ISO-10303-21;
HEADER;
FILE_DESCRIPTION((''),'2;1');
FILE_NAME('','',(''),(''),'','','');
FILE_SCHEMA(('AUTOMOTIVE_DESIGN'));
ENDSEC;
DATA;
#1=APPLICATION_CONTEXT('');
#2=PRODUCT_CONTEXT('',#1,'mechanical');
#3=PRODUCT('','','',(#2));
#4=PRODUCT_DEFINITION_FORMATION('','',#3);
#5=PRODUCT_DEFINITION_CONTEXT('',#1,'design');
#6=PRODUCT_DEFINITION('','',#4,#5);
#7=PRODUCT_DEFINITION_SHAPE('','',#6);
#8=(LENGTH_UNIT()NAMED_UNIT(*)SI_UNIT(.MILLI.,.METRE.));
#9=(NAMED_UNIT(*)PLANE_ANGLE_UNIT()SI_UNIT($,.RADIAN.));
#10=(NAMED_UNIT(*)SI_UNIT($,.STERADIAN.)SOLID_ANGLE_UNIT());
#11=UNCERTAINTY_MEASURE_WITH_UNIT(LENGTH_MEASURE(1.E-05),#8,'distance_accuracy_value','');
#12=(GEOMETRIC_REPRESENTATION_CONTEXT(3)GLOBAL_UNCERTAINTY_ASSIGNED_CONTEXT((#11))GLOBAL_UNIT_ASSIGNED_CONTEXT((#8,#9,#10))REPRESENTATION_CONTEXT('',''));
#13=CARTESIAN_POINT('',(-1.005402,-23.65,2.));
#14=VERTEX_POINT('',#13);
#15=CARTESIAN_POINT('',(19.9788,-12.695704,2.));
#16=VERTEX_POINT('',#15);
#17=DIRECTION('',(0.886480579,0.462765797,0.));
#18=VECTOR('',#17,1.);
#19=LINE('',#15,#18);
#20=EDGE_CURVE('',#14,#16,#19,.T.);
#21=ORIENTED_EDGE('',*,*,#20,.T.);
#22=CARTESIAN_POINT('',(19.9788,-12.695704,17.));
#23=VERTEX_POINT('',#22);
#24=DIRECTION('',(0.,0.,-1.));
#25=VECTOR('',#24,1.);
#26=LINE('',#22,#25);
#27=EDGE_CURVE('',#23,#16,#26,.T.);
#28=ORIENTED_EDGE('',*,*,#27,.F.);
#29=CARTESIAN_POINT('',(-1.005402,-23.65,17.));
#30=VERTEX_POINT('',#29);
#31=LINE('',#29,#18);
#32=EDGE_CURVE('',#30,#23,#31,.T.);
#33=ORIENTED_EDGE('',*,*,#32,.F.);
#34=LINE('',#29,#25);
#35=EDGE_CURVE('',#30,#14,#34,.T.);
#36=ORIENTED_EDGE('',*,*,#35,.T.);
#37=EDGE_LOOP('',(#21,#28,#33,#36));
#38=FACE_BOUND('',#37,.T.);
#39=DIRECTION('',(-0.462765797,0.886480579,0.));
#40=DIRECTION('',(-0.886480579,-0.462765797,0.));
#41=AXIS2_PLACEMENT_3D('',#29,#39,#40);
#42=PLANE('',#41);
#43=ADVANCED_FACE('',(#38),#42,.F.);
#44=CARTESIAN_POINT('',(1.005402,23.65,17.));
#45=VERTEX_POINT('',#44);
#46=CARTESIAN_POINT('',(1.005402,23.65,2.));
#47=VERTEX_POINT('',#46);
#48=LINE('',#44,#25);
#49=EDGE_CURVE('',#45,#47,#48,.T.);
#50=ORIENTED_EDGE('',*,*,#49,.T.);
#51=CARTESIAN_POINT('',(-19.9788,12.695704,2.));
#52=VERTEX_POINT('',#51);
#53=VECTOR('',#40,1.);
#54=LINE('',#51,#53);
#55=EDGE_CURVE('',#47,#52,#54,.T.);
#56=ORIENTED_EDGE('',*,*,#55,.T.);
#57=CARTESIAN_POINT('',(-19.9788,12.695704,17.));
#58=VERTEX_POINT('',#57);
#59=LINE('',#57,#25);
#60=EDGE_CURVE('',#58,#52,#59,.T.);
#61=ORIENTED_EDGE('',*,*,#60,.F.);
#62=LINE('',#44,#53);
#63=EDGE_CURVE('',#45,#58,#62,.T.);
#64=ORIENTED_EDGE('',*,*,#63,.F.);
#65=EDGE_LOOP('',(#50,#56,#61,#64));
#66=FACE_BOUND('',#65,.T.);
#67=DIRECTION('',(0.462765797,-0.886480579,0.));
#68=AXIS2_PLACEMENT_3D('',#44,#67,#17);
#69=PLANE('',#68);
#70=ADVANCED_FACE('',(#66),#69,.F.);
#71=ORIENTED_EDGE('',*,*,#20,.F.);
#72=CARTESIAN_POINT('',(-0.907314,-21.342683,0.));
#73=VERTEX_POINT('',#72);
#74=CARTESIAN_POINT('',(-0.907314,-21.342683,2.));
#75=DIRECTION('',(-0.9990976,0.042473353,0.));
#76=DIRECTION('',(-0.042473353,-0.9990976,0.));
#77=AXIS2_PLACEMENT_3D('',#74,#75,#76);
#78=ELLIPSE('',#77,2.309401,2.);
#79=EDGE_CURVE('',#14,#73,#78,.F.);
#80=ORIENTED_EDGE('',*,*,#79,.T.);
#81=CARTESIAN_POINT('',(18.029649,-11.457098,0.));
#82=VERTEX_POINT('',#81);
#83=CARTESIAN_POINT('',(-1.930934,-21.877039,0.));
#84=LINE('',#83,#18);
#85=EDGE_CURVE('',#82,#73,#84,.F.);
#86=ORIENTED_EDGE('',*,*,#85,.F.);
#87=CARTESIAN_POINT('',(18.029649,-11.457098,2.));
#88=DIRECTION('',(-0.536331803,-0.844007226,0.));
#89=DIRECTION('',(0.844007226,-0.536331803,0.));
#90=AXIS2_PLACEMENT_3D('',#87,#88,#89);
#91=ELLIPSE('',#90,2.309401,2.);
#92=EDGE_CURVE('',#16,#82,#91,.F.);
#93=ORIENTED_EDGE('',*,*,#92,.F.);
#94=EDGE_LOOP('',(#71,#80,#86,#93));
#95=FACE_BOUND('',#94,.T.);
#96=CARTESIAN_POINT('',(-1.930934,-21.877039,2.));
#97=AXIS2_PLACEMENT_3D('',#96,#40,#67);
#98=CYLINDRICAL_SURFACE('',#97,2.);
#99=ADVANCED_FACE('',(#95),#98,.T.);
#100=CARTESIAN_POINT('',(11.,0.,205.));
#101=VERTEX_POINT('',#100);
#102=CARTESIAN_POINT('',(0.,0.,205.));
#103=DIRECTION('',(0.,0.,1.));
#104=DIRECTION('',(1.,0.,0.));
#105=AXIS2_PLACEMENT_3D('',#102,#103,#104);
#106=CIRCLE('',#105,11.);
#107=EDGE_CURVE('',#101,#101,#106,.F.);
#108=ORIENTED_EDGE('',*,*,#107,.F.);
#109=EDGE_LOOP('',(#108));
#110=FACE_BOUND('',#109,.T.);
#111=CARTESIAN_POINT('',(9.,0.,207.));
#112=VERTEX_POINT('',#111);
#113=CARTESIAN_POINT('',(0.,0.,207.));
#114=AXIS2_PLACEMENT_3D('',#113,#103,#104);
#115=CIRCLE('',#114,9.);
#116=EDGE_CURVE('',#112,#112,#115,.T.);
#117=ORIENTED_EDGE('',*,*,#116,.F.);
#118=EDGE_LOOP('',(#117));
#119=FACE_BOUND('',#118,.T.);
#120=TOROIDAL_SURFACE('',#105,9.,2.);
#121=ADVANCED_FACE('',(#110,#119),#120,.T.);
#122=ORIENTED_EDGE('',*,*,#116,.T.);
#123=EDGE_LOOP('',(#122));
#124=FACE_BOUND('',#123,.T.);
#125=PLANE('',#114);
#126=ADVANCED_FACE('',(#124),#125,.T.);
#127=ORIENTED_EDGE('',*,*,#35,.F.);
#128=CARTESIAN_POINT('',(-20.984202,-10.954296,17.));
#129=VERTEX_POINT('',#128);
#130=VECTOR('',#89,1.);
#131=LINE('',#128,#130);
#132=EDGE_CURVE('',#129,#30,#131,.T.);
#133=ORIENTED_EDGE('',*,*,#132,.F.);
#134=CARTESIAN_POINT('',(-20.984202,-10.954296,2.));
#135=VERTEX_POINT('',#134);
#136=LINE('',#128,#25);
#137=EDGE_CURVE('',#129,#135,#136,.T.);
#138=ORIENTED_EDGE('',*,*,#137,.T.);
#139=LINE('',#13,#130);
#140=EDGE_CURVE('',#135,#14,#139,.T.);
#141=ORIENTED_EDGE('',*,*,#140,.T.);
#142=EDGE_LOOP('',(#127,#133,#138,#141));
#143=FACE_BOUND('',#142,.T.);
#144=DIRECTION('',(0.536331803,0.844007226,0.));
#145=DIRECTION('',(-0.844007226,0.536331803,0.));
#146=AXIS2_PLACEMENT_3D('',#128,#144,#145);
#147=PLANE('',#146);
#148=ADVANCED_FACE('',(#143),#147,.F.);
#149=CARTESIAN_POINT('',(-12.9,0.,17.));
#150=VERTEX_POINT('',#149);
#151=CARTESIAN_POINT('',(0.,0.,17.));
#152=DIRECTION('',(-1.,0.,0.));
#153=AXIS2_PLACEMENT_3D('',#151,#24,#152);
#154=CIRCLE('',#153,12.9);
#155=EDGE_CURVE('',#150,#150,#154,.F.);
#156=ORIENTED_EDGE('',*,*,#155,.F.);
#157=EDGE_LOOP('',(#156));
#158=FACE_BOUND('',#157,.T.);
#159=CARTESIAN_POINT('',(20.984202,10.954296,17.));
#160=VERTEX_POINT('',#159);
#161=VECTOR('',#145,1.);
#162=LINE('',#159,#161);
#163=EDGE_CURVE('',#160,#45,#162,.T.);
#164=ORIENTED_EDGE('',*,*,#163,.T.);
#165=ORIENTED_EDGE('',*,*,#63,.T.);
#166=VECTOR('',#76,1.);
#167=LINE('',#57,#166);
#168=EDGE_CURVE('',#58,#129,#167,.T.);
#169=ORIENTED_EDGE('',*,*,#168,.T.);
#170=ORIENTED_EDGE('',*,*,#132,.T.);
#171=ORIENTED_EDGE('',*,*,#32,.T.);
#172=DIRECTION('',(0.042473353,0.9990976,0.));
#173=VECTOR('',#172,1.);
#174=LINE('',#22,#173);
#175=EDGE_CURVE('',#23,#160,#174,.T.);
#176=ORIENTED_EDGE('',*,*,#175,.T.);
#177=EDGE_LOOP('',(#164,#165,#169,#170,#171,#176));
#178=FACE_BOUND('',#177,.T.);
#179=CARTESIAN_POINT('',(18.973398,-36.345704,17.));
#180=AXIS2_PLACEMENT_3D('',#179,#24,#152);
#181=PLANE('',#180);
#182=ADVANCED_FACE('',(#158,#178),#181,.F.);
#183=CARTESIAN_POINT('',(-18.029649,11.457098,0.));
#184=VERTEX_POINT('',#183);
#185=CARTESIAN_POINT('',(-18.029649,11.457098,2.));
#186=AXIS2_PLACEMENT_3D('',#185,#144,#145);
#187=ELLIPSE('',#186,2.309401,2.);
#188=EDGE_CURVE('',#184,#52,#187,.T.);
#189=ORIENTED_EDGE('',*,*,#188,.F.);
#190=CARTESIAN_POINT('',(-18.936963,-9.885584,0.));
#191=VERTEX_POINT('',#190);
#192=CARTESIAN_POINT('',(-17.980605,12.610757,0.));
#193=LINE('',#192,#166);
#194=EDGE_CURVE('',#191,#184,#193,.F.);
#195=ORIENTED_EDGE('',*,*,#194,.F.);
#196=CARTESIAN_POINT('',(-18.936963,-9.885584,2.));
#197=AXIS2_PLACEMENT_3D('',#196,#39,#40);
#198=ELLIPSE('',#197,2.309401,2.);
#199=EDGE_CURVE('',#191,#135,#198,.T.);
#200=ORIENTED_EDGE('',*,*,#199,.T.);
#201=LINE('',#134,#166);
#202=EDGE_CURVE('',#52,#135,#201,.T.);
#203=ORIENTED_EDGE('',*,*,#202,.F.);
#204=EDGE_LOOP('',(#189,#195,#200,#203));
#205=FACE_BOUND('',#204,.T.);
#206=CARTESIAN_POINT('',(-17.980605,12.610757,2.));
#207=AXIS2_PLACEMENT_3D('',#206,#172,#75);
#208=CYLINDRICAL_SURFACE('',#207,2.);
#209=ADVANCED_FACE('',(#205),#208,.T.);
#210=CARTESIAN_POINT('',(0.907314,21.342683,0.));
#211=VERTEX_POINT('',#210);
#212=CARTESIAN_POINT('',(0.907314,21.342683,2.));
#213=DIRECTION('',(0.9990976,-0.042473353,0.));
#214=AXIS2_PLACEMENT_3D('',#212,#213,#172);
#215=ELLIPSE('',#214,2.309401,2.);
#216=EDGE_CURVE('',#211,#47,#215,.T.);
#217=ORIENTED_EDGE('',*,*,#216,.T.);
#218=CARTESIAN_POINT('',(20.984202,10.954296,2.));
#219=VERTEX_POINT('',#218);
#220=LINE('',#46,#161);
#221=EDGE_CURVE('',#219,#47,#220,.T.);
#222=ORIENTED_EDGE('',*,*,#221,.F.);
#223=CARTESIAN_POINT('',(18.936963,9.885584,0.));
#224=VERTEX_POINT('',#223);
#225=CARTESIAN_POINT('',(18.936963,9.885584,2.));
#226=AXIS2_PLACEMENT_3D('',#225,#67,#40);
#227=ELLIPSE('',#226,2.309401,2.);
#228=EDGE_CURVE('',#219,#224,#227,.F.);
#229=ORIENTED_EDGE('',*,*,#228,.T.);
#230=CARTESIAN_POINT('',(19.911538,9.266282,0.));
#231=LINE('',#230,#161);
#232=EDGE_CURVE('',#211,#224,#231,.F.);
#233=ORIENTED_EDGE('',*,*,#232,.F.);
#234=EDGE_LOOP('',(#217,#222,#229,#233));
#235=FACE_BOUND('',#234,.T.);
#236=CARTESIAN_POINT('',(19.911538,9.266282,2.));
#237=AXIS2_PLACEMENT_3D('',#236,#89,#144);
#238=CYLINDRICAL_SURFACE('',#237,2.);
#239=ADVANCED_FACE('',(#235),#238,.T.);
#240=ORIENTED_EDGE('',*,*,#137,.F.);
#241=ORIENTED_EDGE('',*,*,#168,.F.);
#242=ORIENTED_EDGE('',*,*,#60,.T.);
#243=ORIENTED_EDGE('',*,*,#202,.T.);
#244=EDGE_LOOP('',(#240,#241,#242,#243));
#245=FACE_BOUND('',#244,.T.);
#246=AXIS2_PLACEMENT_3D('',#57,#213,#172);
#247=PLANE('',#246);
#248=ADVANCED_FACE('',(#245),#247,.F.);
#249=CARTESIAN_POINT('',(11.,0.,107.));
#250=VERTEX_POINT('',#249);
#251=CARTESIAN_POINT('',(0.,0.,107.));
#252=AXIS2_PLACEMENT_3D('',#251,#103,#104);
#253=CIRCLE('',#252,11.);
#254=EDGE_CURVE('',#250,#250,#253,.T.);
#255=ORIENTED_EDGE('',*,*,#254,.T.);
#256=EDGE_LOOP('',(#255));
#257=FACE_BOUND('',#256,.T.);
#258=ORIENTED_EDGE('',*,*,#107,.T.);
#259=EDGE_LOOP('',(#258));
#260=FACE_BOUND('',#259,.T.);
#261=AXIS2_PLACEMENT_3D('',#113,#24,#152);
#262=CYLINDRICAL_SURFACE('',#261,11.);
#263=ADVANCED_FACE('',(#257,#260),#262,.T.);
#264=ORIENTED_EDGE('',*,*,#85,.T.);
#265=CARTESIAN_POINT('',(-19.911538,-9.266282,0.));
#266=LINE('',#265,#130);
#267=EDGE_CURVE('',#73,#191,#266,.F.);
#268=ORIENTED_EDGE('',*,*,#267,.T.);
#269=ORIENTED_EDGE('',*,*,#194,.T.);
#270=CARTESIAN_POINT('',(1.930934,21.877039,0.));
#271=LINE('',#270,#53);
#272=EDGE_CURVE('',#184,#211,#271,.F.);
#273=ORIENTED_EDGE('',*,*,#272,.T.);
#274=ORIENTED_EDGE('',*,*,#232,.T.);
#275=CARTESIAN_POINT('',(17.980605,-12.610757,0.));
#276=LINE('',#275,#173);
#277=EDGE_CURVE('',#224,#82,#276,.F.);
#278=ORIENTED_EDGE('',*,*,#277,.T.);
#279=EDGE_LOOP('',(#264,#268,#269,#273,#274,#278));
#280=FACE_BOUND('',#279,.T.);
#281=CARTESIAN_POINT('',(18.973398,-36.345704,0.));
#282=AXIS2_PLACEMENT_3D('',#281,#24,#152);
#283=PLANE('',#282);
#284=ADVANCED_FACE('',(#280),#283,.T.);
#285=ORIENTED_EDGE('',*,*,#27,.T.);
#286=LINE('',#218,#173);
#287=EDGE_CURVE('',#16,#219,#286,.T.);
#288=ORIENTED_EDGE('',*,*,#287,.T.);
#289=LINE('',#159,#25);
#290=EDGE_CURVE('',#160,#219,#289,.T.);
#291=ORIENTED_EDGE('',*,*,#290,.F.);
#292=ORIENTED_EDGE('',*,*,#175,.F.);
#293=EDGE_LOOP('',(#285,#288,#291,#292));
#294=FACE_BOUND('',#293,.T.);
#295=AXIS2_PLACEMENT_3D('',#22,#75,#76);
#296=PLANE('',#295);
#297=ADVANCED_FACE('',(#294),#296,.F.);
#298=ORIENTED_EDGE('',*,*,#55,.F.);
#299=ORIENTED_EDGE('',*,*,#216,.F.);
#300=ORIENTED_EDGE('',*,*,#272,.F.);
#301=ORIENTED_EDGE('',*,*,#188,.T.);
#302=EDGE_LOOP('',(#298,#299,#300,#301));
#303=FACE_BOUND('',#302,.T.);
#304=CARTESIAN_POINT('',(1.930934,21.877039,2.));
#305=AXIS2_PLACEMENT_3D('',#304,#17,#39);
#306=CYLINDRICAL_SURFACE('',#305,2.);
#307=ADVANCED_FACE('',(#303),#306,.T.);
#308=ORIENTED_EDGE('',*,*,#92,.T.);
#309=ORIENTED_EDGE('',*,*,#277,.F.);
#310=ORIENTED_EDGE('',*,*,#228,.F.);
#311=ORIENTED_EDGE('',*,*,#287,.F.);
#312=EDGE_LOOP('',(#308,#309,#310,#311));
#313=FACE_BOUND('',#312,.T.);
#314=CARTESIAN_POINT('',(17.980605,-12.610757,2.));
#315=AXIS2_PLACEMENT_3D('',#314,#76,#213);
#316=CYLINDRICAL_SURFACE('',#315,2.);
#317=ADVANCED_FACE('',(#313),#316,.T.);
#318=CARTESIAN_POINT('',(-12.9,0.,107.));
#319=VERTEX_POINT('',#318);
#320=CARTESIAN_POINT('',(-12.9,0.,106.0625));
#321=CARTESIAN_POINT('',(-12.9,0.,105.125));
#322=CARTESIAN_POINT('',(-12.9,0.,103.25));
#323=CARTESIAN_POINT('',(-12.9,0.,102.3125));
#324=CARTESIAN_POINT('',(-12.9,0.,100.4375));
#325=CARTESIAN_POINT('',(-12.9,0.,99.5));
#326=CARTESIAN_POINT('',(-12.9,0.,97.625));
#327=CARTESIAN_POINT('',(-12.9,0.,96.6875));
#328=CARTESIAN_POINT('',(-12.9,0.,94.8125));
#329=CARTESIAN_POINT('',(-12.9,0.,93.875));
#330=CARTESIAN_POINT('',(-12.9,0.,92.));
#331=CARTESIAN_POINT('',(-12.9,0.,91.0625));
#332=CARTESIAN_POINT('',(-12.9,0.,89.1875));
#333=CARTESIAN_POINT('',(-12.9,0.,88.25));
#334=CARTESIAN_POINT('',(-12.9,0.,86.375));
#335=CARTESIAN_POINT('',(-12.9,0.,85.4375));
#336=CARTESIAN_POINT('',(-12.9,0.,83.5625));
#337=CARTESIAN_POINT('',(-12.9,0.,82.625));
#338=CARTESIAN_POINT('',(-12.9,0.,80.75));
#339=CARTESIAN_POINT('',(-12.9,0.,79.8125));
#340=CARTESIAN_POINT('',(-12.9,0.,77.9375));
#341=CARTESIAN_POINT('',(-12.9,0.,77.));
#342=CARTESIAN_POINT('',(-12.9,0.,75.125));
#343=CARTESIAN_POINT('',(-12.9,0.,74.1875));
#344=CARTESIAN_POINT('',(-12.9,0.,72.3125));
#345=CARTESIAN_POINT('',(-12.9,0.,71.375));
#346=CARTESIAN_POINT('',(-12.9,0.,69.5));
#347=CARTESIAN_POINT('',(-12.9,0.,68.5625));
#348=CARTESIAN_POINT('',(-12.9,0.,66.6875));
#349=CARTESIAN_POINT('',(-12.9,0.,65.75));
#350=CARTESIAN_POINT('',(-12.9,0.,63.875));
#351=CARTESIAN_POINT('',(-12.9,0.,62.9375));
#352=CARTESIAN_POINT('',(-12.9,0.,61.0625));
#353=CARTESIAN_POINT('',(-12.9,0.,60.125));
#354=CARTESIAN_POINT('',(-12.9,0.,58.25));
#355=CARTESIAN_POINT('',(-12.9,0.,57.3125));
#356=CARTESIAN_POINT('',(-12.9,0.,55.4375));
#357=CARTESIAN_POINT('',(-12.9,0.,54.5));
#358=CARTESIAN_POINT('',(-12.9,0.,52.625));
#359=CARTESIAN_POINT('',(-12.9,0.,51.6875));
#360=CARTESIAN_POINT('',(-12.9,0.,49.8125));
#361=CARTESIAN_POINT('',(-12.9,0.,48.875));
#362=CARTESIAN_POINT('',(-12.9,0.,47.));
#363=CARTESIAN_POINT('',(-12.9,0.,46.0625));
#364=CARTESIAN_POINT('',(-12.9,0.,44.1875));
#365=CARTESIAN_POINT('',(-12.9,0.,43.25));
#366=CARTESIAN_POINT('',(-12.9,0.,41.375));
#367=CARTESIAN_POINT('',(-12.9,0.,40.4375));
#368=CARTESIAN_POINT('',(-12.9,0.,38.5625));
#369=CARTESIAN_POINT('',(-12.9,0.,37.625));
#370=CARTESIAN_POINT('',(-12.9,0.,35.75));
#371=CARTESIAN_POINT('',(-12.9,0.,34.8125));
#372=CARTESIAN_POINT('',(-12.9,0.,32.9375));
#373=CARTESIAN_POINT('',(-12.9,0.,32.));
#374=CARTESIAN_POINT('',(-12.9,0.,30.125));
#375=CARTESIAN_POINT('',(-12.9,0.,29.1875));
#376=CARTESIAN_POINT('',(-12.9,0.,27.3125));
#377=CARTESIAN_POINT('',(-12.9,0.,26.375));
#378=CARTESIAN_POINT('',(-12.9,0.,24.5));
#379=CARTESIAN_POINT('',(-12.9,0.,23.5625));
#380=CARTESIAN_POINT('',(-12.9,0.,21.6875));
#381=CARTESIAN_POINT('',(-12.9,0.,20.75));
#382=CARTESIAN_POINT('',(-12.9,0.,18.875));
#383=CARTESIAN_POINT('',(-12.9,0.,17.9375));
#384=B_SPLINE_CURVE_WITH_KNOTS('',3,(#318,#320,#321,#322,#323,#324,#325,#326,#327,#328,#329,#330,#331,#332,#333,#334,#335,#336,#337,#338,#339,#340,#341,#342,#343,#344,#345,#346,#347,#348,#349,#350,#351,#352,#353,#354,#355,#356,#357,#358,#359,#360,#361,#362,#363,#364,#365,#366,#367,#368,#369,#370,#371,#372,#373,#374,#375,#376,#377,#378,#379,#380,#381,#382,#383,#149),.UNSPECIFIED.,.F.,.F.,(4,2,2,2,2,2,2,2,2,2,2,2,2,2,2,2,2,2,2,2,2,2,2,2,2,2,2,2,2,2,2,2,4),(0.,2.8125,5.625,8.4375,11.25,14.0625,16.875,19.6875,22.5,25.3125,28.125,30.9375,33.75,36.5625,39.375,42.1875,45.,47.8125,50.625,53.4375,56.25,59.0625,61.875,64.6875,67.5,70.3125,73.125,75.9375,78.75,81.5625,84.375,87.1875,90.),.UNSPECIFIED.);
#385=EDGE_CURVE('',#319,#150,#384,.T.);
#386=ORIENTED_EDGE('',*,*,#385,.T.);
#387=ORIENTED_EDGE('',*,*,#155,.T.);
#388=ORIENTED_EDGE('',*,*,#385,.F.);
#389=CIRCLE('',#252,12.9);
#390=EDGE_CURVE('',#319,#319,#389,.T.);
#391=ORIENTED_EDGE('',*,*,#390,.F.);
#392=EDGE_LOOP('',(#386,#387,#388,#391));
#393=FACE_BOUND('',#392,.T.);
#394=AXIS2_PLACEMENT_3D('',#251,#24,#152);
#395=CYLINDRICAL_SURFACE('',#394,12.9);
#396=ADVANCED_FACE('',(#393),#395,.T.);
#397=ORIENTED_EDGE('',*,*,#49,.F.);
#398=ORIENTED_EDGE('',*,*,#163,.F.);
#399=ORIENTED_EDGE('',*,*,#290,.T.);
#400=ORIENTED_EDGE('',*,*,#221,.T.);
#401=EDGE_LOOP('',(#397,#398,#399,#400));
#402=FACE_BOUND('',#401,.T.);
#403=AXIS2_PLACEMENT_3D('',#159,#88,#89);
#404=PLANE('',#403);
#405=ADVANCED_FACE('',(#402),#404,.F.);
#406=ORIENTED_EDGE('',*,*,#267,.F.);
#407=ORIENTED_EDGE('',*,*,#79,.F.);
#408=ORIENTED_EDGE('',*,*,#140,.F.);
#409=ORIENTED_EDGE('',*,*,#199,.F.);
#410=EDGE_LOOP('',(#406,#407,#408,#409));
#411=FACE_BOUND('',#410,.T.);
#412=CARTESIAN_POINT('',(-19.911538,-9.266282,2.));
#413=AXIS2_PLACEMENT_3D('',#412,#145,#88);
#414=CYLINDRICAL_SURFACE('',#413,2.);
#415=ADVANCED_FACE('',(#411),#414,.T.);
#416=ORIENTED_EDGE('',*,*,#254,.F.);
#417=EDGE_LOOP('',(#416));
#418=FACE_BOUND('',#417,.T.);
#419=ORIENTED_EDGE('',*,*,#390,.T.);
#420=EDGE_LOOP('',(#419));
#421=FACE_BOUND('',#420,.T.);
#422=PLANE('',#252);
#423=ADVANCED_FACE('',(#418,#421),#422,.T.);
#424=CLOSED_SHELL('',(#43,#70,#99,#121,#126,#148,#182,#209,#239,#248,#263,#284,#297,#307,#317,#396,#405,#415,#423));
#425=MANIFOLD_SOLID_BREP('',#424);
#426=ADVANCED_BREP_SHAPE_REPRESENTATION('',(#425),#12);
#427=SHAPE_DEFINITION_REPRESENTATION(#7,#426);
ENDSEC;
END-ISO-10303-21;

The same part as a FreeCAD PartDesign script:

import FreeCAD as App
import Part
import Sketcher
from FreeCAD import Vector
Q = App.Units.Quantity


def edges_at(feature, points):
    """Names of the edges that pass closest to the given points."""
    edges = feature.Shape.Edges
    near = lambda p: min(range(len(edges)), key=lambda i: edges[i].distToShape(Part.Vertex(*p))[0])
    return sorted({f"Edge{near(p) + 1}" for p in points})


def add_polygon(sketch, points):
    """Adds a closed chain of lines whose ends are joined by coincident constraints."""
    first, n = sketch.GeometryCount, len(points)
    for a, b in zip(points, points[1:] + points[:1]):
        sketch.addGeometry(Part.LineSegment(App.Vector(*a, 0), App.Vector(*b, 0)), False)
    for i in range(n):
        sketch.addConstraint(Sketcher.Constraint("Coincident", first + i, 2, first + (i + 1) % n, 1))

doc = App.newDocument("Part")
body = doc.addObject("PartDesign::Body", "Body")

# Sketch on XY plane
sketch1 = doc.addObject("Sketcher::SketchObject", "Sketch")
body.addObject(sketch1)
sketch1.AttachmentSupport = (doc.XY_Plane, [""])
sketch1.MapMode = "FlatFace"
add_polygon(sketch1, [(21, 11), (1, 24), (-20, 13), (-21, -11), (-1, -24), (20, -13)])  # lines 0-5
sketch1.addConstraint([
    Sketcher.Constraint("Symmetric", 0, 2, 3, 2, -1, 1),
    Sketcher.Constraint("Symmetric", 1, 2, 4, 2, -1, 1),
    Sketcher.Constraint("Symmetric", 2, 2, 5, 2, -1, 1),
    Sketcher.Constraint("Equal", 0, 1),
    Sketcher.Constraint("Equal", 1, 2),
    Sketcher.Constraint("DistanceY", 3, 2, 0, 2, Q("47.3 mm")),
    Sketcher.Constraint("DistanceY", 2, 2, 1, 2, Q("23.65 mm")),
    Sketcher.Constraint("DistanceX", 2, 2, 4, 2, Q("40.963002 mm")),
    Sketcher.Constraint("DistanceX", 1, 2, -1, 1, Q("19.9788 mm")),
])
pad1 = doc.addObject("PartDesign::Pad", "Pad")
body.addObject(pad1)
pad1.Profile = sketch1
pad1.Length = 17

# Sketch on XY plane
sketch2 = doc.addObject("Sketcher::SketchObject", "Sketch001")
body.addObject(sketch2)
sketch2.AttachmentSupport = (doc.XY_Plane, [""])
sketch2.MapMode = "FlatFace"
sketch2.AttachmentOffset = App.Placement(Vector(0, 0, 17), App.Rotation())
sketch2.addGeometry(Part.Circle(Vector(0, 0, 0), Vector(0, 0, 1), 13), False)
sketch2.addConstraint([
    Sketcher.Constraint("Coincident", 0, 3, -1, 1),
    Sketcher.Constraint("Diameter", 0, Q("25.8 mm")),
])
pad2 = doc.addObject("PartDesign::Pad", "Pad001")
body.addObject(pad2)
pad2.Profile = sketch2
pad2.Length = 90
doc.recompute()

fillet = doc.addObject("PartDesign::Fillet", "Fillet")
body.addObject(fillet)
fillet.Base = (pad2, edges_at(pad2, [
    (9.487, -18.173, 0),
    (-10.995, -17.302, 0),
    (-20.482, 0.871, 0),
    (-9.487, 18.173, 0),
    (10.995, 17.302, 0),
    (20.482, -0.871, 0),
]))
fillet.Radius = 2

# Sketch on XY plane
sketch3 = doc.addObject("Sketcher::SketchObject", "Sketch002")
body.addObject(sketch3)
sketch3.AttachmentSupport = (doc.XY_Plane, [""])
sketch3.MapMode = "FlatFace"
sketch3.AttachmentOffset = App.Placement(Vector(0, 0, 107), App.Rotation())
sketch3.addGeometry(Part.Circle(Vector(0, 0, 0), Vector(0, 0, 1), 11), False)
sketch3.addConstraint([
    Sketcher.Constraint("Coincident", 0, 3, -1, 1),
    Sketcher.Constraint("Diameter", 0, Q("22 mm")),
])
pad3 = doc.addObject("PartDesign::Pad", "Pad002")
body.addObject(pad3)
pad3.Profile = sketch3
pad3.Length = 100
doc.recompute()

fillet2 = doc.addObject("PartDesign::Fillet", "Fillet001")
body.addObject(fillet2)
fillet2.Base = (pad3, edges_at(pad3, [(-11, 0, 207)]))
fillet2.Radius = 2

doc.recompute()
